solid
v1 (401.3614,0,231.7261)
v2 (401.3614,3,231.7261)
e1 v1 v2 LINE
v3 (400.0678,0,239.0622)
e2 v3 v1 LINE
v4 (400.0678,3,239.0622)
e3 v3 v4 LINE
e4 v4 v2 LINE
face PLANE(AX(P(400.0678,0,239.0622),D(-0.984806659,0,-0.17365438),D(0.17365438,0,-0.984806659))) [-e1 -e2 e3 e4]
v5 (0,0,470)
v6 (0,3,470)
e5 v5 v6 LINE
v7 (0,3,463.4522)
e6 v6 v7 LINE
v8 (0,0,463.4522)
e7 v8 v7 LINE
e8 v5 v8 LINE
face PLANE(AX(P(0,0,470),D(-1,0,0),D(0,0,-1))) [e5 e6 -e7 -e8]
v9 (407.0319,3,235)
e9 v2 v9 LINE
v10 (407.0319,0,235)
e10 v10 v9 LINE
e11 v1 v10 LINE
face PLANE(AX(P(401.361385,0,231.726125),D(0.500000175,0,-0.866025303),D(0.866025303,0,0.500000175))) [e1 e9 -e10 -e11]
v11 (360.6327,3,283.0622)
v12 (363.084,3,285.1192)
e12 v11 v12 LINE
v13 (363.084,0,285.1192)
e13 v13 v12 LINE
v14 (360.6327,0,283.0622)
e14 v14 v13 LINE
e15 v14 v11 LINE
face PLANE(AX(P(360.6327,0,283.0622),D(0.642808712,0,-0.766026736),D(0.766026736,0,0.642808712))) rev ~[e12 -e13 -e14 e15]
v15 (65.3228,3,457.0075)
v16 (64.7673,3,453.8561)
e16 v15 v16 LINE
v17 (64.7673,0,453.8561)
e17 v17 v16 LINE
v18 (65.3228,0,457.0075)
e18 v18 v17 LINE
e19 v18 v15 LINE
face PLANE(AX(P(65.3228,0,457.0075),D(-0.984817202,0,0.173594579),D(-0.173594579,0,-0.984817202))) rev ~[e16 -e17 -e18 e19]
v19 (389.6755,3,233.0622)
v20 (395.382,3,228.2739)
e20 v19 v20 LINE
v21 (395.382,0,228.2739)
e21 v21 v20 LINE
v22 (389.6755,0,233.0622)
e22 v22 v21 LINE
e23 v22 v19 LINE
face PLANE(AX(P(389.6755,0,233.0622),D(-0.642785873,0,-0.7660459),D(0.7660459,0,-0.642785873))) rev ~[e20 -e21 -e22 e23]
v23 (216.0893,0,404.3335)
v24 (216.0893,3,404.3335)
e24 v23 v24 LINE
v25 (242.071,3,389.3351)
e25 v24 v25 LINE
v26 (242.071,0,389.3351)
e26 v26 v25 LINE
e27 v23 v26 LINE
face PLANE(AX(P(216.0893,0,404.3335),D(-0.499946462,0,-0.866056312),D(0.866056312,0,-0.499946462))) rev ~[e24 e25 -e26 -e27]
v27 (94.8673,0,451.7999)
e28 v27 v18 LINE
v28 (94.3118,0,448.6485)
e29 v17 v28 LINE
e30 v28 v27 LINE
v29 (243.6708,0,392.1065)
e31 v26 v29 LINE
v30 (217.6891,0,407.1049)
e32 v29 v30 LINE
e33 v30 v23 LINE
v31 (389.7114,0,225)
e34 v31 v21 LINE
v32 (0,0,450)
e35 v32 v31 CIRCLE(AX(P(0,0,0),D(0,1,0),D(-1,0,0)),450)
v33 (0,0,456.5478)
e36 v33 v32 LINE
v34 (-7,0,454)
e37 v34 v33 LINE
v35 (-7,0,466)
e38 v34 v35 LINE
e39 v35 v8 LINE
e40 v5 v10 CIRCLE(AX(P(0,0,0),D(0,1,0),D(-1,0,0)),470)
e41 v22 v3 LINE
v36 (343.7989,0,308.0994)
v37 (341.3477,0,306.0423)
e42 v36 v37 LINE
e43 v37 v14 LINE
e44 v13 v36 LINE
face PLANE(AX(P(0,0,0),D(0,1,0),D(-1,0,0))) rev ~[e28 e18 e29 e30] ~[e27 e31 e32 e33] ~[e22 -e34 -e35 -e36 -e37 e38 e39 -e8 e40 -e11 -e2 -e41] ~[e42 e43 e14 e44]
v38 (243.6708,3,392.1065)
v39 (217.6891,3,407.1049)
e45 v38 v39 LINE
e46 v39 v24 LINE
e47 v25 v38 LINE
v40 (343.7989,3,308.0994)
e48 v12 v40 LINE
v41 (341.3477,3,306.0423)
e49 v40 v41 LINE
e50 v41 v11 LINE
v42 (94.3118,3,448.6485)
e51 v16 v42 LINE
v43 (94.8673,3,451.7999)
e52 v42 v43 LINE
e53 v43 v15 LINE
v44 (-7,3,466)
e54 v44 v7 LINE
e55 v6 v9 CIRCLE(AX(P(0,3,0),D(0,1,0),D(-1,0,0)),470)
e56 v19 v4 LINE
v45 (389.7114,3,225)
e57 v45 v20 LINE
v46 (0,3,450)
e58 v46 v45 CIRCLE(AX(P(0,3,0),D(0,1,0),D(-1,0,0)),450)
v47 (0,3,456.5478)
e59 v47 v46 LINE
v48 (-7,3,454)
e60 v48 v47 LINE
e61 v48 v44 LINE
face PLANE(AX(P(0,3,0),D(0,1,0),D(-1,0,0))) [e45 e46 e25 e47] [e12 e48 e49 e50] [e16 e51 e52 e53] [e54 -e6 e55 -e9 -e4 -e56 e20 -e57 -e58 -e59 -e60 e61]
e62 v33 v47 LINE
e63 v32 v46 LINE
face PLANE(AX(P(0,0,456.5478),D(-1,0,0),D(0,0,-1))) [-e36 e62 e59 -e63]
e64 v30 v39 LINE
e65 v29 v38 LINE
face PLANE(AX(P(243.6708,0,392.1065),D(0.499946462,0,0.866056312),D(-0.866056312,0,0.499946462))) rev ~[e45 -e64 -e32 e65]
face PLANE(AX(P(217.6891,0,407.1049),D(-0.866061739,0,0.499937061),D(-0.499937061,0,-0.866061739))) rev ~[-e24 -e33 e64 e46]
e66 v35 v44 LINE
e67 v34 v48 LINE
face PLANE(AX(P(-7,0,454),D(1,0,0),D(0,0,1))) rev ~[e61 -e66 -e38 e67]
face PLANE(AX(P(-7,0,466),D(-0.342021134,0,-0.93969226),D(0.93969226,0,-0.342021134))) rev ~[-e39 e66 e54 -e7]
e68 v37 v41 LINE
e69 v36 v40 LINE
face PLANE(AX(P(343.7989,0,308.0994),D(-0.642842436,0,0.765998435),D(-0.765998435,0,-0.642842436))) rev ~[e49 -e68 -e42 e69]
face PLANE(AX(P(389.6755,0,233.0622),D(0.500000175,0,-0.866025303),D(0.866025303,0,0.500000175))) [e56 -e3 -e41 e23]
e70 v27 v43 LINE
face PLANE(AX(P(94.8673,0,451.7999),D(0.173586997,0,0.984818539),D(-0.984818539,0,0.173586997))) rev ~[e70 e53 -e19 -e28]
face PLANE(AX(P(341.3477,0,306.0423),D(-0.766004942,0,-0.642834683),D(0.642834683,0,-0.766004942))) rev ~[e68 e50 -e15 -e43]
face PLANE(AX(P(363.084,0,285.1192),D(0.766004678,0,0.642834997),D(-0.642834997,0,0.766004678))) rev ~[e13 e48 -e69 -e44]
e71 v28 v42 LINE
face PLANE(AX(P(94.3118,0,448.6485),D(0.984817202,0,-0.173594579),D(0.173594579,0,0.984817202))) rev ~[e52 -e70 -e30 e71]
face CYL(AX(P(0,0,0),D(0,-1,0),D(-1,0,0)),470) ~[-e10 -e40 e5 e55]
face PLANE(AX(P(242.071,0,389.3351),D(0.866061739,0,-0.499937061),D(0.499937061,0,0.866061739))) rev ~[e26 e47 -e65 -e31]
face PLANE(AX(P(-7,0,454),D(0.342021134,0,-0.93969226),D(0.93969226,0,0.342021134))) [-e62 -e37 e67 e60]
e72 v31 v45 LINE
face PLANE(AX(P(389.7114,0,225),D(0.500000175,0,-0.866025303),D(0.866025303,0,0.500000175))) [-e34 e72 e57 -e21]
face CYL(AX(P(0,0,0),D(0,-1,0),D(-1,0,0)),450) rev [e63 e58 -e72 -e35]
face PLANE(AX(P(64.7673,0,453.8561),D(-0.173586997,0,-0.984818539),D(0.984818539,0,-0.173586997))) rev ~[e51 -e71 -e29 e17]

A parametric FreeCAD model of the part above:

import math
import FreeCAD as App
import Part
import Sketcher

V = App.Vector
Q = App.Units.Quantity

doc = App.newDocument("Part")
body = doc.addObject("PartDesign::Body", "Body")

# Sketch on XZ plane
sketch1 = body.newObject("Sketcher::SketchObject", "Sketch")
sketch1.AttachmentSupport = (doc.getObject("XZ_Plane"), [""])
sketch1.MapMode = "FlatFace"
sketch1.addGeometry([
    Part.ArcOfCircle(Part.Circle(V(0, 0, 0), V(0, 0, 1), 450), math.radians(30.000002), math.radians(90)),  # 0
    Part.LineSegment(V(0, 450, 0), V(0, 456.5478, 0)),  # 1
    Part.LineSegment(V(0, 456.5478, 0), V(-7, 454, 0)),  # 2
    Part.LineSegment(V(-7, 454, 0), V(-7, 466, 0)),  # 3
    Part.LineSegment(V(-7, 466, 0), V(0, 463.4522, 0)),  # 4
    Part.LineSegment(V(0, 463.4522, 0), V(0, 470, 0)),  # 5
    Part.ArcOfCircle(Part.Circle(V(0, 0, 0), V(0, 0, 1), 470), math.radians(30.000002), math.radians(90)),  # 6
    Part.LineSegment(V(407.0319, 235, 0), V(401.361385, 231.726125, 0)),  # 7
    Part.LineSegment(V(401.3614, 231.7261, 0), V(400.0678, 239.0622, 0)),  # 8
    Part.LineSegment(V(400.0678, 239.0622, 0), V(389.6755, 233.0622, 0)),  # 9
    Part.LineSegment(V(389.6755, 233.0622, 0), V(395.382, 228.2739, 0)),  # 10
    Part.LineSegment(V(395.38199, 228.273918, 0), V(389.7114, 225, 0)),  # 11
    Part.LineSegment(V(360.6327, 283.0622, 0), V(363.084, 285.1192, 0)),  # 12
    Part.LineSegment(V(363.084, 285.1192, 0), V(343.7989, 308.0994, 0)),  # 13
    Part.LineSegment(V(343.7989, 308.0994, 0), V(341.3477, 306.0423, 0)),  # 14
    Part.LineSegment(V(341.3477, 306.0423, 0), V(360.6327, 283.0622, 0)),  # 15
    Part.LineSegment(V(216.0893, 404.3335, 0), V(242.071, 389.3351, 0)),  # 16
    Part.LineSegment(V(242.071, 389.3351, 0), V(243.6708, 392.1065, 0)),  # 17
    Part.LineSegment(V(243.6708, 392.1065, 0), V(217.6891, 407.1049, 0)),  # 18
    Part.LineSegment(V(217.6891, 407.1049, 0), V(216.0893, 404.3335, 0)),  # 19
    Part.LineSegment(V(64.7673, 453.8561, 0), V(94.3118, 448.6485, 0)),  # 20
    Part.LineSegment(V(94.3118, 448.6485, 0), V(94.8673, 451.7999, 0)),  # 21
    Part.LineSegment(V(94.8673, 451.7999, 0), V(65.3228, 457.0075, 0)),  # 22
    Part.LineSegment(V(65.3228, 457.0075, 0), V(64.7673, 453.8561, 0)),  # 23
], False)
sketch1.addConstraint([
    Sketcher.Constraint("Coincident", 0, 2, 1, 1),
    Sketcher.Constraint("Coincident", 1, 2, 2, 1),
    Sketcher.Constraint("Coincident", 2, 2, 3, 1),
    Sketcher.Constraint("Coincident", 3, 2, 4, 1),
    Sketcher.Constraint("Coincident", 4, 2, 5, 1),
    Sketcher.Constraint("Coincident", 5, 2, 6, 2),
    Sketcher.Constraint("Coincident", 6, 1, 7, 1),
    Sketcher.Constraint("Coincident", 7, 2, 8, 1),
    Sketcher.Constraint("Coincident", 8, 2, 9, 1),
    Sketcher.Constraint("Coincident", 9, 2, 10, 1),
    Sketcher.Constraint("Coincident", 10, 2, 11, 1),
    Sketcher.Constraint("Coincident", 11, 2, 0, 1),
    Sketcher.Constraint("Coincident", 12, 2, 13, 1),
    Sketcher.Constraint("Coincident", 13, 2, 14, 1),
    Sketcher.Constraint("Coincident", 14, 2, 15, 1),
    Sketcher.Constraint("Coincident", 15, 2, 12, 1),
    Sketcher.Constraint("Coincident", 16, 2, 17, 1),
    Sketcher.Constraint("Coincident", 17, 2, 18, 1),
    Sketcher.Constraint("Coincident", 18, 2, 19, 1),
    Sketcher.Constraint("Coincident", 19, 2, 16, 1),
    Sketcher.Constraint("Coincident", 20, 2, 21, 1),
    Sketcher.Constraint("Coincident", 21, 2, 22, 1),
    Sketcher.Constraint("Coincident", 22, 2, 23, 1),
    Sketcher.Constraint("Coincident", 23, 2, 20, 1),
    Sketcher.Constraint("Vertical", 1),
    Sketcher.Constraint("Vertical", 3),
    Sketcher.Constraint("Vertical", 5),
    Sketcher.Constraint("Coincident", 0, 3, -1, 1),
    Sketcher.Constraint("Coincident", 6, 3, -1, 1),
    Sketcher.Constraint("PointOnObject", 1, 2, -2),
    Sketcher.Constraint("PointOnObject", 4, 2, -2),
    Sketcher.Constraint("Parallel", 7, 9),
    Sketcher.Constraint("Parallel", 9, 11),
    Sketcher.Constraint("Perpendicular", 12, 13),
    Sketcher.Constraint("Perpendicular", 13, 14),
    Sketcher.Constraint("Perpendicular", 14, 15),
    Sketcher.Constraint("Perpendicular", 16, 17),
    Sketcher.Constraint("Perpendicular", 17, 18),
    Sketcher.Constraint("Perpendicular", 18, 19),
    Sketcher.Constraint("Perpendicular", 20, 21),
    Sketcher.Constraint("Perpendicular", 21, 22),
    Sketcher.Constraint("Perpendicular", 22, 23),
    Sketcher.Constraint("Equal", 1, 5),
    Sketcher.Constraint("Equal", 2, 4),
    Sketcher.Constraint("Equal", 4, 8),
    Sketcher.Constraint("Equal", 8, 10),
    Sketcher.Constraint("Equal", 7, 11),
    Sketcher.Constraint("Equal", 15, 16),
    Sketcher.Constraint("Equal", 14, 17),
    Sketcher.Constraint("Equal", 18, 20),
    Sketcher.Constraint("Equal", 19, 21),
    Sketcher.Constraint("Radius", 0, Q("450 mm")),
    Sketcher.Constraint("Radius", 6, Q("470 mm")),
    Sketcher.Constraint("DistanceY", 3, 1, 3, 2, Q("12 mm")),
    Sketcher.Constraint("Distance", 9, Q("12 mm")),
    Sketcher.Constraint("Distance", 13, Q("30 mm")),
    Sketcher.Constraint("DistanceX", 2, 2, -1, 1, Q("7 mm")),
    Sketcher.Constraint("DistanceY", 9, 2, 15, 2, Q("50 mm")),
    Sketcher.Constraint("Distance", 12, Q("3.2 mm")),
    Sketcher.Constraint("Angle", 2, Q("-160 deg")),
    Sketcher.Constraint("Angle", 7, Q("-150 deg")),
    Sketcher.Constraint("Angle", 8, Q("100.0004 deg")),
    Sketcher.Constraint("Angle", 10, Q("-39.9999 deg")),
    Sketcher.Constraint("DistanceY", -1, 1, 11, 2, Q("225 mm")),
    Sketcher.Constraint("DistanceY", -1, 1, 21, 2, Q("451.8 mm")),
    Sketcher.Constraint("DistanceX", 23, 2, 21, 2, Q("30.1 mm")),
    Sketcher.Constraint("DistanceY", 9, 2, 14, 2, Q("72.98 mm")),
    Sketcher.Constraint("DistanceX", 14, 2, 8, 2, Q("58.72 mm")),
    Sketcher.Constraint("DistanceX", -1, 1, 16, 2, Q("242.071 mm")),
    Sketcher.Constraint("DistanceY", -1, 1, 16, 2, Q("389.335 mm")),
    Sketcher.Constraint("DistanceX", -1, 1, 18, 2, Q("217.689 mm")),
    Sketcher.Constraint("DistanceX", -1, 1, 20, 2, Q("94.3118 mm")),
])
pad1 = body.newObject("PartDesign::Pad", "Pad")
pad1.Profile = sketch1
pad1.Length = 3
pad1.Reversed = True

doc.recompute()
